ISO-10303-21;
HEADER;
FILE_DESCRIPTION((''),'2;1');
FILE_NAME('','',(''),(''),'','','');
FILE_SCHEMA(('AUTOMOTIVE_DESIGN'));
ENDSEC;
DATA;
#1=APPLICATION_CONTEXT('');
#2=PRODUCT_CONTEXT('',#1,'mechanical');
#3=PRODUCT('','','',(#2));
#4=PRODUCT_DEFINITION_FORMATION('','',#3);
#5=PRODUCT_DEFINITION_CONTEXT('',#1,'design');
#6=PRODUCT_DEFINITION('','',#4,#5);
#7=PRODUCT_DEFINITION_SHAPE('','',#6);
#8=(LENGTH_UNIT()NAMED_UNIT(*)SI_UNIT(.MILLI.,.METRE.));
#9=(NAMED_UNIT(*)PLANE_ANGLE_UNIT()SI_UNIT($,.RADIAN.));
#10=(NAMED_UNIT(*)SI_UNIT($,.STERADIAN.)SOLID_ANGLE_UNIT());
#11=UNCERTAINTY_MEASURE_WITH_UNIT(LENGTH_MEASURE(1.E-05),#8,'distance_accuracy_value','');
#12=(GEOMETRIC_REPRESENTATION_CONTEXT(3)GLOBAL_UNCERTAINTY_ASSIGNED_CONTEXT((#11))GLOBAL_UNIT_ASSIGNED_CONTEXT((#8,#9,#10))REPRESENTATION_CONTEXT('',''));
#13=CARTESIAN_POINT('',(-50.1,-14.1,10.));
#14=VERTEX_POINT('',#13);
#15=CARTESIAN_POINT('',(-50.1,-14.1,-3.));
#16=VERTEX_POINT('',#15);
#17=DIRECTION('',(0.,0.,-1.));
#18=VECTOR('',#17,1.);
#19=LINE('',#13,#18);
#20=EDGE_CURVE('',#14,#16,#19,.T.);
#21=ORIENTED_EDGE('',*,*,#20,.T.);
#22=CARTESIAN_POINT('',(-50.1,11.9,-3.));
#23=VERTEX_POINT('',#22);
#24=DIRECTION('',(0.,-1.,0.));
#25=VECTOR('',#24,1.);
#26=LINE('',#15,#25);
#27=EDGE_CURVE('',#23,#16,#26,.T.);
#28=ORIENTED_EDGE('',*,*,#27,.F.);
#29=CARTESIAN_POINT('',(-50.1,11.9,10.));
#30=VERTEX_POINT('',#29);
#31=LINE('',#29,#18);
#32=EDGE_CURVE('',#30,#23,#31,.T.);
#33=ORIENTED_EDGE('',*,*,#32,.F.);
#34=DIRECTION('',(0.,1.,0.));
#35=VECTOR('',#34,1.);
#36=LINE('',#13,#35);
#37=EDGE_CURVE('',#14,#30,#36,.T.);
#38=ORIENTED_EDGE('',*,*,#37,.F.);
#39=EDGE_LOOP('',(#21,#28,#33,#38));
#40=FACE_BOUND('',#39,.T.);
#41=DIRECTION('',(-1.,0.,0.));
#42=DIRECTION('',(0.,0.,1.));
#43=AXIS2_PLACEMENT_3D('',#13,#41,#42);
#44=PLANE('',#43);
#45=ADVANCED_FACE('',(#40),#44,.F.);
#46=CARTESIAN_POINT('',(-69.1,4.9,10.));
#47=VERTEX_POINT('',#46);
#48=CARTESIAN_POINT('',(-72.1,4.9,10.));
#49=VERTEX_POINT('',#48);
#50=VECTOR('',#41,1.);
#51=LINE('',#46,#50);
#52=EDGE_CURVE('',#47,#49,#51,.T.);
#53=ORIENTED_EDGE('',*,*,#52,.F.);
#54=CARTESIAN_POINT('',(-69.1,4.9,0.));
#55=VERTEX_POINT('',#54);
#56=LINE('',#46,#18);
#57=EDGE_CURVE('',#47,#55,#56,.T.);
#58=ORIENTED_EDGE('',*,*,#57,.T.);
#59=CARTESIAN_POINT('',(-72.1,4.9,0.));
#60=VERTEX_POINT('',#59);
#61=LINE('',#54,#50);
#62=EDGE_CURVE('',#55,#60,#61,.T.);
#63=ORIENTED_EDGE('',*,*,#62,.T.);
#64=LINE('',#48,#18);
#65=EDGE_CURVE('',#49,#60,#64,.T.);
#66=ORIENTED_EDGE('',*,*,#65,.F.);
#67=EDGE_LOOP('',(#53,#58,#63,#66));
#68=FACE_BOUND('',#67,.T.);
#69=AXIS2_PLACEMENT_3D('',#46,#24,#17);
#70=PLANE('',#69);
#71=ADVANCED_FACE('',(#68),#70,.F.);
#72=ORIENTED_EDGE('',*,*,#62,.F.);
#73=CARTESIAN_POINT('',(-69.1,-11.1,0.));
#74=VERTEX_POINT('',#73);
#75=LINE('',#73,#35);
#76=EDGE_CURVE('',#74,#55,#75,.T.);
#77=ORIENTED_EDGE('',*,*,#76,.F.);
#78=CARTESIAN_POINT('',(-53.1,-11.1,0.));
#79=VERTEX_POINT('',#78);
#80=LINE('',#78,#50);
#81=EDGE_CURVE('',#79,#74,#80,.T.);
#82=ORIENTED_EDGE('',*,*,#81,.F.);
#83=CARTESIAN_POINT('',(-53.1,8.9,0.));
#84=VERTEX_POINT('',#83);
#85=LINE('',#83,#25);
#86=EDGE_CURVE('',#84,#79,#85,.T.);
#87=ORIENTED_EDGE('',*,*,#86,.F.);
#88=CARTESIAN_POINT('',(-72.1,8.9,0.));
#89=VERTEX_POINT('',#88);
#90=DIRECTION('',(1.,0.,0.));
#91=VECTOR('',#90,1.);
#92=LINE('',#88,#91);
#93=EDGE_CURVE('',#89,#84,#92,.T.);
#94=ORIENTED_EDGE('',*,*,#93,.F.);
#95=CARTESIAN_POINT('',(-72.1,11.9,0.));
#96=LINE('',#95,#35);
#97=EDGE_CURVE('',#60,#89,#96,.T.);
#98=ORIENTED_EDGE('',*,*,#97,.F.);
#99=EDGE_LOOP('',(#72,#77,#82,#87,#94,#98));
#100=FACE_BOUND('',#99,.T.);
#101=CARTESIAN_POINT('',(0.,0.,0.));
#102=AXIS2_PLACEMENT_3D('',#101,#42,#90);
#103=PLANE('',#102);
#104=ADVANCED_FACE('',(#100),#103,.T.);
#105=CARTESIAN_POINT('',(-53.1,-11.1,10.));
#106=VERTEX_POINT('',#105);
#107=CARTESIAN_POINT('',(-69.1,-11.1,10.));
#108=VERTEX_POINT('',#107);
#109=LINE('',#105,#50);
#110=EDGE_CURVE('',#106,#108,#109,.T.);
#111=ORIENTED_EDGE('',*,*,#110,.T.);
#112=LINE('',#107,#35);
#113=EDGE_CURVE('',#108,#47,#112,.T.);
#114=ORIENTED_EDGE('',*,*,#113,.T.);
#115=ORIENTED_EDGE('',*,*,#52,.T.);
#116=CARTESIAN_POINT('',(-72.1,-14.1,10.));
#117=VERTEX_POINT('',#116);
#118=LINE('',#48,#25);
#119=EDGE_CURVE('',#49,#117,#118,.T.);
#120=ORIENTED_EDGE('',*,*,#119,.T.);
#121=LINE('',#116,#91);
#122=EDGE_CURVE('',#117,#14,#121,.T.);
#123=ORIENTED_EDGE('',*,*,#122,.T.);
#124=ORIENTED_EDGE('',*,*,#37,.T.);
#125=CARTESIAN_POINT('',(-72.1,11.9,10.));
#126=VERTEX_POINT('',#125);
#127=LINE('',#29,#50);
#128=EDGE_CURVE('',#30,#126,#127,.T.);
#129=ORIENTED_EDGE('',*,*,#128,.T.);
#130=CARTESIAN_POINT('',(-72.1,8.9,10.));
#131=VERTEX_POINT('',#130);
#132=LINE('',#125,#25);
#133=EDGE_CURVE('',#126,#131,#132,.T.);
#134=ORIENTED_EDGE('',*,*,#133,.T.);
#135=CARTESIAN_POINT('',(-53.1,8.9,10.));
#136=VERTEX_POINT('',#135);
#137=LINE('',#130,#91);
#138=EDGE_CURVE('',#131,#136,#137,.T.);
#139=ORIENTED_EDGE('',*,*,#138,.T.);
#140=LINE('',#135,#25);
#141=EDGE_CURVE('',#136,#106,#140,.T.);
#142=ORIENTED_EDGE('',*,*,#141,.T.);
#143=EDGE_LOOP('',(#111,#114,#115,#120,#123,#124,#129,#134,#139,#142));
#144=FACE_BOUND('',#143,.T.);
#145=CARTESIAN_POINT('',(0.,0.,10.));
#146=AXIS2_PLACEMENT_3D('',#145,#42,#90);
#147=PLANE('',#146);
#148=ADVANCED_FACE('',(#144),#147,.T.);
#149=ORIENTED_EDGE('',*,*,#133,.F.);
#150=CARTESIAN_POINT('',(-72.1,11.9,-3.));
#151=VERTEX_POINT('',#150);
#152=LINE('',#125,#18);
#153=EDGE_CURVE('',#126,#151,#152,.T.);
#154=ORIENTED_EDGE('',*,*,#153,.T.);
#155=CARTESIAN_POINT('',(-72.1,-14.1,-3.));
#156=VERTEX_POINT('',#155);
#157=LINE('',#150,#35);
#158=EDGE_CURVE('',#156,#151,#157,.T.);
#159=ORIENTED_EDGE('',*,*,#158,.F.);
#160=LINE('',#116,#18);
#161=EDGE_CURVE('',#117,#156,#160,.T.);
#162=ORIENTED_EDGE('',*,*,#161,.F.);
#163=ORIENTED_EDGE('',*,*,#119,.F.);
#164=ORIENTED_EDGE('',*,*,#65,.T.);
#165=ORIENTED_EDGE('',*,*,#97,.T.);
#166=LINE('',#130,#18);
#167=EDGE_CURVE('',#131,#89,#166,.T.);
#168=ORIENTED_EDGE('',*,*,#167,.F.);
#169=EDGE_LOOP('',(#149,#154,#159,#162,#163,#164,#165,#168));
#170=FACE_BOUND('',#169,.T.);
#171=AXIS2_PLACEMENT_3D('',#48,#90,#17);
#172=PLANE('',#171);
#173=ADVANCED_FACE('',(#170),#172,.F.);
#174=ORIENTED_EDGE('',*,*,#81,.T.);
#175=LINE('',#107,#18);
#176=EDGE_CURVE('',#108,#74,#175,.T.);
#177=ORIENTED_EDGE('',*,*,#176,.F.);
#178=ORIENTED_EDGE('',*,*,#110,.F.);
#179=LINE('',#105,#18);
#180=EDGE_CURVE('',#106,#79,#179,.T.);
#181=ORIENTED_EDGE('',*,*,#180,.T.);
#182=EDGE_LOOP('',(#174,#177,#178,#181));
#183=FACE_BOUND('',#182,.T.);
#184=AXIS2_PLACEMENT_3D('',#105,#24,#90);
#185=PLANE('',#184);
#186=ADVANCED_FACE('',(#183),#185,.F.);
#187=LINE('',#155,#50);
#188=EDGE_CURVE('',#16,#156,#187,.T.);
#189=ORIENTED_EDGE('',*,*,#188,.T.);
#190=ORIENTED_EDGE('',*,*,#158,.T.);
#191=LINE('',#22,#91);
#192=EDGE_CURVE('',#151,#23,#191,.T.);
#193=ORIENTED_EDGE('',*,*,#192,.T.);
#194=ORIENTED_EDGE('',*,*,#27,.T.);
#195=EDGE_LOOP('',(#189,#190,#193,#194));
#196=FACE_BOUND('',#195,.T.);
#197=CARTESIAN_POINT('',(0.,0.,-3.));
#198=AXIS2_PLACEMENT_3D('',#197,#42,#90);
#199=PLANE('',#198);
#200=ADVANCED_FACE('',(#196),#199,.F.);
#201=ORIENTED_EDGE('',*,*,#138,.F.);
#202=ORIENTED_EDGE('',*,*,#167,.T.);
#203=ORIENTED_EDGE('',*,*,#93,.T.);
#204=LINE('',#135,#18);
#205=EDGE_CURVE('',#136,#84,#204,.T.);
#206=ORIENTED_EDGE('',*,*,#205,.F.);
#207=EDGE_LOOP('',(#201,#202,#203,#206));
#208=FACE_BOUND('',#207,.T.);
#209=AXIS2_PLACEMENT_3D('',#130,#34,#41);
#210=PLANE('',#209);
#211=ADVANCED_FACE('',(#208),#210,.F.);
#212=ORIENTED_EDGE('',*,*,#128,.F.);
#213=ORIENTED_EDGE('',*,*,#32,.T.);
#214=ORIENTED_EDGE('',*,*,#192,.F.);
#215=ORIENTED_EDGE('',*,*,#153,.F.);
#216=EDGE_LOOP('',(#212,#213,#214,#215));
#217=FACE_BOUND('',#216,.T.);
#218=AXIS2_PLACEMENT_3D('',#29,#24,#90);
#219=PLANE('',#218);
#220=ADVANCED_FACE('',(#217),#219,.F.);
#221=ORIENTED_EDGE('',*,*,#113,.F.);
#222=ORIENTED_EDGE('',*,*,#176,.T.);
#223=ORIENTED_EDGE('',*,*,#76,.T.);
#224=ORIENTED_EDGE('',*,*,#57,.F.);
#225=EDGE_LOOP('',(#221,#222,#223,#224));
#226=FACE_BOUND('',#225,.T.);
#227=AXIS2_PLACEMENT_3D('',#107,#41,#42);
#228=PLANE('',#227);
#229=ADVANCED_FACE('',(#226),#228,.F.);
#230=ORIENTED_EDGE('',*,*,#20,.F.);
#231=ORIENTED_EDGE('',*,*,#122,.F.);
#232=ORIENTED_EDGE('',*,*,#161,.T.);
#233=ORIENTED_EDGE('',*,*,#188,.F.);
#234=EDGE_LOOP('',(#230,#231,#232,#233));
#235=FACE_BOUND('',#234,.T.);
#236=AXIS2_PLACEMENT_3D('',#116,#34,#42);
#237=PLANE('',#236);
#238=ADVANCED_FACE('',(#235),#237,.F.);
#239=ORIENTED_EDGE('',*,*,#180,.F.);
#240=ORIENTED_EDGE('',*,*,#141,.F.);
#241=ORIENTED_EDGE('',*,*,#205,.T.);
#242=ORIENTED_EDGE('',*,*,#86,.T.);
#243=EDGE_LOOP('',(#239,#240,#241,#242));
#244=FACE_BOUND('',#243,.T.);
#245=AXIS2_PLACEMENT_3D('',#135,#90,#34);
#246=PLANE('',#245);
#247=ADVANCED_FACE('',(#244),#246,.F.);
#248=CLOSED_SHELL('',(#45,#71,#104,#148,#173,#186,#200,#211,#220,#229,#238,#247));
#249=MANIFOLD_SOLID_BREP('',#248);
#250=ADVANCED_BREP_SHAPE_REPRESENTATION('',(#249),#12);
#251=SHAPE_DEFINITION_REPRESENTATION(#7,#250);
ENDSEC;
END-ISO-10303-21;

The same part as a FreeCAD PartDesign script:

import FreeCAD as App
import Part
import Sketcher


def add_polygon(sketch, points):
    """Adds a closed chain of lines whose ends are joined by coincident constraints."""
    first, n = sketch.GeometryCount, len(points)
    for a, b in zip(points, points[1:] + points[:1]):
        sketch.addGeometry(Part.LineSegment(App.Vector(*a, 0), App.Vector(*b, 0)), False)
    for i in range(n):
        sketch.addConstraint(Sketcher.Constraint("Coincident", first + i, 2, first + (i + 1) % n, 1))

doc = App.newDocument("Part")
body = doc.addObject("PartDesign::Body", "Body")

sketch1 = doc.addObject("Sketcher::SketchObject", "Sketch")
body.addObject(sketch1)
sketch1.AttachmentSupport = (doc.XY_Plane, [""])
sketch1.MapMode = "FlatFace"
add_polygon(sketch1, [(-72.1, 8.9), (-53.1, 8.9), (-53.1, -11.1), (-69.1, -11.1), (-69.1, 4.9), (-72.1, 4.9), (-72.1, -14.1), (-50.1, -14.1), (-50.1, 11.9), (-72.1, 11.9)])
sketch1.addConstraint(Sketcher.Constraint("Horizontal", 0))
sketch1.addConstraint(Sketcher.Constraint("Vertical", 1))
sketch1.addConstraint(Sketcher.Constraint("Horizontal", 2))
sketch1.addConstraint(Sketcher.Constraint("Vertical", 3))
sketch1.addConstraint(Sketcher.Constraint("Horizontal", 4))
sketch1.addConstraint(Sketcher.Constraint("Vertical", 5))
sketch1.addConstraint(Sketcher.Constraint("Horizontal", 6))
sketch1.addConstraint(Sketcher.Constraint("Vertical", 7))
sketch1.addConstraint(Sketcher.Constraint("Horizontal", 8))
sketch1.addConstraint(Sketcher.Constraint("Vertical", 9))
sketch1.addConstraint(Sketcher.Constraint("Vertical", 5, 2, 8, 2))
sketch1.addConstraint(Sketcher.Constraint("Equal", 2, 3))
sketch1.addConstraint(Sketcher.Constraint("Equal", 0, 5))
sketch1.addConstraint(Sketcher.Constraint("Equal", 4, 9))
sketch1.addConstraint(Sketcher.Constraint("DistanceX", 0, 1, 0, 2, 19.0))
sketch1.addConstraint(Sketcher.Constraint("DistanceX", 2, 2, 2, 1, 16.0))
sketch1.addConstraint(Sketcher.Constraint("DistanceX", 6, 1, 6, 2, 22.0))
sketch1.addConstraint(Sketcher.Constraint("DistanceY", 1, 2, 1, 1, 20.0))
sketch1.addConstraint(Sketcher.Constraint("DistanceX", 0, 2, -1, 1, 53.1))
sketch1.addConstraint(Sketcher.Constraint("DistanceY", -1, 1, 0, 2, 8.9))
pad1 = doc.addObject("PartDesign::Pad", "Pad")
body.addObject(pad1)
pad1.Profile = sketch1
pad1.Length = 10

sketch2 = doc.addObject("Sketcher::SketchObject", "Sketch001")
body.addObject(sketch2)
sketch2.AttachmentSupport = (doc.XY_Plane, [""])
sketch2.MapMode = "FlatFace"
add_polygon(sketch2, [(-50, 12), (-50, -14), (-72, -14), (-72, 12)])
sketch2.addConstraint(Sketcher.Constraint("Vertical", 0))
sketch2.addConstraint(Sketcher.Constraint("Horizontal", 1))
sketch2.addConstraint(Sketcher.Constraint("Vertical", 2))
sketch2.addConstraint(Sketcher.Constraint("Horizontal", 3))
sketch2.addConstraint(Sketcher.Constraint("DistanceX", 1, 2, 1, 1, 22.0))
sketch2.addConstraint(Sketcher.Constraint("DistanceY", 0, 2, 0, 1, 26.0))
sketch2.addConstraint(Sketcher.Constraint("DistanceX", 0, 2, -1, 1, 50.1))
sketch2.addConstraint(Sketcher.Constraint("DistanceY", 0, 2, -1, 1, 14.1))
pad2 = doc.addObject("PartDesign::Pad", "Pad001")
body.addObject(pad2)
pad2.Profile = sketch2
pad2.Length = 3
pad2.Reversed = True

doc.recompute()
